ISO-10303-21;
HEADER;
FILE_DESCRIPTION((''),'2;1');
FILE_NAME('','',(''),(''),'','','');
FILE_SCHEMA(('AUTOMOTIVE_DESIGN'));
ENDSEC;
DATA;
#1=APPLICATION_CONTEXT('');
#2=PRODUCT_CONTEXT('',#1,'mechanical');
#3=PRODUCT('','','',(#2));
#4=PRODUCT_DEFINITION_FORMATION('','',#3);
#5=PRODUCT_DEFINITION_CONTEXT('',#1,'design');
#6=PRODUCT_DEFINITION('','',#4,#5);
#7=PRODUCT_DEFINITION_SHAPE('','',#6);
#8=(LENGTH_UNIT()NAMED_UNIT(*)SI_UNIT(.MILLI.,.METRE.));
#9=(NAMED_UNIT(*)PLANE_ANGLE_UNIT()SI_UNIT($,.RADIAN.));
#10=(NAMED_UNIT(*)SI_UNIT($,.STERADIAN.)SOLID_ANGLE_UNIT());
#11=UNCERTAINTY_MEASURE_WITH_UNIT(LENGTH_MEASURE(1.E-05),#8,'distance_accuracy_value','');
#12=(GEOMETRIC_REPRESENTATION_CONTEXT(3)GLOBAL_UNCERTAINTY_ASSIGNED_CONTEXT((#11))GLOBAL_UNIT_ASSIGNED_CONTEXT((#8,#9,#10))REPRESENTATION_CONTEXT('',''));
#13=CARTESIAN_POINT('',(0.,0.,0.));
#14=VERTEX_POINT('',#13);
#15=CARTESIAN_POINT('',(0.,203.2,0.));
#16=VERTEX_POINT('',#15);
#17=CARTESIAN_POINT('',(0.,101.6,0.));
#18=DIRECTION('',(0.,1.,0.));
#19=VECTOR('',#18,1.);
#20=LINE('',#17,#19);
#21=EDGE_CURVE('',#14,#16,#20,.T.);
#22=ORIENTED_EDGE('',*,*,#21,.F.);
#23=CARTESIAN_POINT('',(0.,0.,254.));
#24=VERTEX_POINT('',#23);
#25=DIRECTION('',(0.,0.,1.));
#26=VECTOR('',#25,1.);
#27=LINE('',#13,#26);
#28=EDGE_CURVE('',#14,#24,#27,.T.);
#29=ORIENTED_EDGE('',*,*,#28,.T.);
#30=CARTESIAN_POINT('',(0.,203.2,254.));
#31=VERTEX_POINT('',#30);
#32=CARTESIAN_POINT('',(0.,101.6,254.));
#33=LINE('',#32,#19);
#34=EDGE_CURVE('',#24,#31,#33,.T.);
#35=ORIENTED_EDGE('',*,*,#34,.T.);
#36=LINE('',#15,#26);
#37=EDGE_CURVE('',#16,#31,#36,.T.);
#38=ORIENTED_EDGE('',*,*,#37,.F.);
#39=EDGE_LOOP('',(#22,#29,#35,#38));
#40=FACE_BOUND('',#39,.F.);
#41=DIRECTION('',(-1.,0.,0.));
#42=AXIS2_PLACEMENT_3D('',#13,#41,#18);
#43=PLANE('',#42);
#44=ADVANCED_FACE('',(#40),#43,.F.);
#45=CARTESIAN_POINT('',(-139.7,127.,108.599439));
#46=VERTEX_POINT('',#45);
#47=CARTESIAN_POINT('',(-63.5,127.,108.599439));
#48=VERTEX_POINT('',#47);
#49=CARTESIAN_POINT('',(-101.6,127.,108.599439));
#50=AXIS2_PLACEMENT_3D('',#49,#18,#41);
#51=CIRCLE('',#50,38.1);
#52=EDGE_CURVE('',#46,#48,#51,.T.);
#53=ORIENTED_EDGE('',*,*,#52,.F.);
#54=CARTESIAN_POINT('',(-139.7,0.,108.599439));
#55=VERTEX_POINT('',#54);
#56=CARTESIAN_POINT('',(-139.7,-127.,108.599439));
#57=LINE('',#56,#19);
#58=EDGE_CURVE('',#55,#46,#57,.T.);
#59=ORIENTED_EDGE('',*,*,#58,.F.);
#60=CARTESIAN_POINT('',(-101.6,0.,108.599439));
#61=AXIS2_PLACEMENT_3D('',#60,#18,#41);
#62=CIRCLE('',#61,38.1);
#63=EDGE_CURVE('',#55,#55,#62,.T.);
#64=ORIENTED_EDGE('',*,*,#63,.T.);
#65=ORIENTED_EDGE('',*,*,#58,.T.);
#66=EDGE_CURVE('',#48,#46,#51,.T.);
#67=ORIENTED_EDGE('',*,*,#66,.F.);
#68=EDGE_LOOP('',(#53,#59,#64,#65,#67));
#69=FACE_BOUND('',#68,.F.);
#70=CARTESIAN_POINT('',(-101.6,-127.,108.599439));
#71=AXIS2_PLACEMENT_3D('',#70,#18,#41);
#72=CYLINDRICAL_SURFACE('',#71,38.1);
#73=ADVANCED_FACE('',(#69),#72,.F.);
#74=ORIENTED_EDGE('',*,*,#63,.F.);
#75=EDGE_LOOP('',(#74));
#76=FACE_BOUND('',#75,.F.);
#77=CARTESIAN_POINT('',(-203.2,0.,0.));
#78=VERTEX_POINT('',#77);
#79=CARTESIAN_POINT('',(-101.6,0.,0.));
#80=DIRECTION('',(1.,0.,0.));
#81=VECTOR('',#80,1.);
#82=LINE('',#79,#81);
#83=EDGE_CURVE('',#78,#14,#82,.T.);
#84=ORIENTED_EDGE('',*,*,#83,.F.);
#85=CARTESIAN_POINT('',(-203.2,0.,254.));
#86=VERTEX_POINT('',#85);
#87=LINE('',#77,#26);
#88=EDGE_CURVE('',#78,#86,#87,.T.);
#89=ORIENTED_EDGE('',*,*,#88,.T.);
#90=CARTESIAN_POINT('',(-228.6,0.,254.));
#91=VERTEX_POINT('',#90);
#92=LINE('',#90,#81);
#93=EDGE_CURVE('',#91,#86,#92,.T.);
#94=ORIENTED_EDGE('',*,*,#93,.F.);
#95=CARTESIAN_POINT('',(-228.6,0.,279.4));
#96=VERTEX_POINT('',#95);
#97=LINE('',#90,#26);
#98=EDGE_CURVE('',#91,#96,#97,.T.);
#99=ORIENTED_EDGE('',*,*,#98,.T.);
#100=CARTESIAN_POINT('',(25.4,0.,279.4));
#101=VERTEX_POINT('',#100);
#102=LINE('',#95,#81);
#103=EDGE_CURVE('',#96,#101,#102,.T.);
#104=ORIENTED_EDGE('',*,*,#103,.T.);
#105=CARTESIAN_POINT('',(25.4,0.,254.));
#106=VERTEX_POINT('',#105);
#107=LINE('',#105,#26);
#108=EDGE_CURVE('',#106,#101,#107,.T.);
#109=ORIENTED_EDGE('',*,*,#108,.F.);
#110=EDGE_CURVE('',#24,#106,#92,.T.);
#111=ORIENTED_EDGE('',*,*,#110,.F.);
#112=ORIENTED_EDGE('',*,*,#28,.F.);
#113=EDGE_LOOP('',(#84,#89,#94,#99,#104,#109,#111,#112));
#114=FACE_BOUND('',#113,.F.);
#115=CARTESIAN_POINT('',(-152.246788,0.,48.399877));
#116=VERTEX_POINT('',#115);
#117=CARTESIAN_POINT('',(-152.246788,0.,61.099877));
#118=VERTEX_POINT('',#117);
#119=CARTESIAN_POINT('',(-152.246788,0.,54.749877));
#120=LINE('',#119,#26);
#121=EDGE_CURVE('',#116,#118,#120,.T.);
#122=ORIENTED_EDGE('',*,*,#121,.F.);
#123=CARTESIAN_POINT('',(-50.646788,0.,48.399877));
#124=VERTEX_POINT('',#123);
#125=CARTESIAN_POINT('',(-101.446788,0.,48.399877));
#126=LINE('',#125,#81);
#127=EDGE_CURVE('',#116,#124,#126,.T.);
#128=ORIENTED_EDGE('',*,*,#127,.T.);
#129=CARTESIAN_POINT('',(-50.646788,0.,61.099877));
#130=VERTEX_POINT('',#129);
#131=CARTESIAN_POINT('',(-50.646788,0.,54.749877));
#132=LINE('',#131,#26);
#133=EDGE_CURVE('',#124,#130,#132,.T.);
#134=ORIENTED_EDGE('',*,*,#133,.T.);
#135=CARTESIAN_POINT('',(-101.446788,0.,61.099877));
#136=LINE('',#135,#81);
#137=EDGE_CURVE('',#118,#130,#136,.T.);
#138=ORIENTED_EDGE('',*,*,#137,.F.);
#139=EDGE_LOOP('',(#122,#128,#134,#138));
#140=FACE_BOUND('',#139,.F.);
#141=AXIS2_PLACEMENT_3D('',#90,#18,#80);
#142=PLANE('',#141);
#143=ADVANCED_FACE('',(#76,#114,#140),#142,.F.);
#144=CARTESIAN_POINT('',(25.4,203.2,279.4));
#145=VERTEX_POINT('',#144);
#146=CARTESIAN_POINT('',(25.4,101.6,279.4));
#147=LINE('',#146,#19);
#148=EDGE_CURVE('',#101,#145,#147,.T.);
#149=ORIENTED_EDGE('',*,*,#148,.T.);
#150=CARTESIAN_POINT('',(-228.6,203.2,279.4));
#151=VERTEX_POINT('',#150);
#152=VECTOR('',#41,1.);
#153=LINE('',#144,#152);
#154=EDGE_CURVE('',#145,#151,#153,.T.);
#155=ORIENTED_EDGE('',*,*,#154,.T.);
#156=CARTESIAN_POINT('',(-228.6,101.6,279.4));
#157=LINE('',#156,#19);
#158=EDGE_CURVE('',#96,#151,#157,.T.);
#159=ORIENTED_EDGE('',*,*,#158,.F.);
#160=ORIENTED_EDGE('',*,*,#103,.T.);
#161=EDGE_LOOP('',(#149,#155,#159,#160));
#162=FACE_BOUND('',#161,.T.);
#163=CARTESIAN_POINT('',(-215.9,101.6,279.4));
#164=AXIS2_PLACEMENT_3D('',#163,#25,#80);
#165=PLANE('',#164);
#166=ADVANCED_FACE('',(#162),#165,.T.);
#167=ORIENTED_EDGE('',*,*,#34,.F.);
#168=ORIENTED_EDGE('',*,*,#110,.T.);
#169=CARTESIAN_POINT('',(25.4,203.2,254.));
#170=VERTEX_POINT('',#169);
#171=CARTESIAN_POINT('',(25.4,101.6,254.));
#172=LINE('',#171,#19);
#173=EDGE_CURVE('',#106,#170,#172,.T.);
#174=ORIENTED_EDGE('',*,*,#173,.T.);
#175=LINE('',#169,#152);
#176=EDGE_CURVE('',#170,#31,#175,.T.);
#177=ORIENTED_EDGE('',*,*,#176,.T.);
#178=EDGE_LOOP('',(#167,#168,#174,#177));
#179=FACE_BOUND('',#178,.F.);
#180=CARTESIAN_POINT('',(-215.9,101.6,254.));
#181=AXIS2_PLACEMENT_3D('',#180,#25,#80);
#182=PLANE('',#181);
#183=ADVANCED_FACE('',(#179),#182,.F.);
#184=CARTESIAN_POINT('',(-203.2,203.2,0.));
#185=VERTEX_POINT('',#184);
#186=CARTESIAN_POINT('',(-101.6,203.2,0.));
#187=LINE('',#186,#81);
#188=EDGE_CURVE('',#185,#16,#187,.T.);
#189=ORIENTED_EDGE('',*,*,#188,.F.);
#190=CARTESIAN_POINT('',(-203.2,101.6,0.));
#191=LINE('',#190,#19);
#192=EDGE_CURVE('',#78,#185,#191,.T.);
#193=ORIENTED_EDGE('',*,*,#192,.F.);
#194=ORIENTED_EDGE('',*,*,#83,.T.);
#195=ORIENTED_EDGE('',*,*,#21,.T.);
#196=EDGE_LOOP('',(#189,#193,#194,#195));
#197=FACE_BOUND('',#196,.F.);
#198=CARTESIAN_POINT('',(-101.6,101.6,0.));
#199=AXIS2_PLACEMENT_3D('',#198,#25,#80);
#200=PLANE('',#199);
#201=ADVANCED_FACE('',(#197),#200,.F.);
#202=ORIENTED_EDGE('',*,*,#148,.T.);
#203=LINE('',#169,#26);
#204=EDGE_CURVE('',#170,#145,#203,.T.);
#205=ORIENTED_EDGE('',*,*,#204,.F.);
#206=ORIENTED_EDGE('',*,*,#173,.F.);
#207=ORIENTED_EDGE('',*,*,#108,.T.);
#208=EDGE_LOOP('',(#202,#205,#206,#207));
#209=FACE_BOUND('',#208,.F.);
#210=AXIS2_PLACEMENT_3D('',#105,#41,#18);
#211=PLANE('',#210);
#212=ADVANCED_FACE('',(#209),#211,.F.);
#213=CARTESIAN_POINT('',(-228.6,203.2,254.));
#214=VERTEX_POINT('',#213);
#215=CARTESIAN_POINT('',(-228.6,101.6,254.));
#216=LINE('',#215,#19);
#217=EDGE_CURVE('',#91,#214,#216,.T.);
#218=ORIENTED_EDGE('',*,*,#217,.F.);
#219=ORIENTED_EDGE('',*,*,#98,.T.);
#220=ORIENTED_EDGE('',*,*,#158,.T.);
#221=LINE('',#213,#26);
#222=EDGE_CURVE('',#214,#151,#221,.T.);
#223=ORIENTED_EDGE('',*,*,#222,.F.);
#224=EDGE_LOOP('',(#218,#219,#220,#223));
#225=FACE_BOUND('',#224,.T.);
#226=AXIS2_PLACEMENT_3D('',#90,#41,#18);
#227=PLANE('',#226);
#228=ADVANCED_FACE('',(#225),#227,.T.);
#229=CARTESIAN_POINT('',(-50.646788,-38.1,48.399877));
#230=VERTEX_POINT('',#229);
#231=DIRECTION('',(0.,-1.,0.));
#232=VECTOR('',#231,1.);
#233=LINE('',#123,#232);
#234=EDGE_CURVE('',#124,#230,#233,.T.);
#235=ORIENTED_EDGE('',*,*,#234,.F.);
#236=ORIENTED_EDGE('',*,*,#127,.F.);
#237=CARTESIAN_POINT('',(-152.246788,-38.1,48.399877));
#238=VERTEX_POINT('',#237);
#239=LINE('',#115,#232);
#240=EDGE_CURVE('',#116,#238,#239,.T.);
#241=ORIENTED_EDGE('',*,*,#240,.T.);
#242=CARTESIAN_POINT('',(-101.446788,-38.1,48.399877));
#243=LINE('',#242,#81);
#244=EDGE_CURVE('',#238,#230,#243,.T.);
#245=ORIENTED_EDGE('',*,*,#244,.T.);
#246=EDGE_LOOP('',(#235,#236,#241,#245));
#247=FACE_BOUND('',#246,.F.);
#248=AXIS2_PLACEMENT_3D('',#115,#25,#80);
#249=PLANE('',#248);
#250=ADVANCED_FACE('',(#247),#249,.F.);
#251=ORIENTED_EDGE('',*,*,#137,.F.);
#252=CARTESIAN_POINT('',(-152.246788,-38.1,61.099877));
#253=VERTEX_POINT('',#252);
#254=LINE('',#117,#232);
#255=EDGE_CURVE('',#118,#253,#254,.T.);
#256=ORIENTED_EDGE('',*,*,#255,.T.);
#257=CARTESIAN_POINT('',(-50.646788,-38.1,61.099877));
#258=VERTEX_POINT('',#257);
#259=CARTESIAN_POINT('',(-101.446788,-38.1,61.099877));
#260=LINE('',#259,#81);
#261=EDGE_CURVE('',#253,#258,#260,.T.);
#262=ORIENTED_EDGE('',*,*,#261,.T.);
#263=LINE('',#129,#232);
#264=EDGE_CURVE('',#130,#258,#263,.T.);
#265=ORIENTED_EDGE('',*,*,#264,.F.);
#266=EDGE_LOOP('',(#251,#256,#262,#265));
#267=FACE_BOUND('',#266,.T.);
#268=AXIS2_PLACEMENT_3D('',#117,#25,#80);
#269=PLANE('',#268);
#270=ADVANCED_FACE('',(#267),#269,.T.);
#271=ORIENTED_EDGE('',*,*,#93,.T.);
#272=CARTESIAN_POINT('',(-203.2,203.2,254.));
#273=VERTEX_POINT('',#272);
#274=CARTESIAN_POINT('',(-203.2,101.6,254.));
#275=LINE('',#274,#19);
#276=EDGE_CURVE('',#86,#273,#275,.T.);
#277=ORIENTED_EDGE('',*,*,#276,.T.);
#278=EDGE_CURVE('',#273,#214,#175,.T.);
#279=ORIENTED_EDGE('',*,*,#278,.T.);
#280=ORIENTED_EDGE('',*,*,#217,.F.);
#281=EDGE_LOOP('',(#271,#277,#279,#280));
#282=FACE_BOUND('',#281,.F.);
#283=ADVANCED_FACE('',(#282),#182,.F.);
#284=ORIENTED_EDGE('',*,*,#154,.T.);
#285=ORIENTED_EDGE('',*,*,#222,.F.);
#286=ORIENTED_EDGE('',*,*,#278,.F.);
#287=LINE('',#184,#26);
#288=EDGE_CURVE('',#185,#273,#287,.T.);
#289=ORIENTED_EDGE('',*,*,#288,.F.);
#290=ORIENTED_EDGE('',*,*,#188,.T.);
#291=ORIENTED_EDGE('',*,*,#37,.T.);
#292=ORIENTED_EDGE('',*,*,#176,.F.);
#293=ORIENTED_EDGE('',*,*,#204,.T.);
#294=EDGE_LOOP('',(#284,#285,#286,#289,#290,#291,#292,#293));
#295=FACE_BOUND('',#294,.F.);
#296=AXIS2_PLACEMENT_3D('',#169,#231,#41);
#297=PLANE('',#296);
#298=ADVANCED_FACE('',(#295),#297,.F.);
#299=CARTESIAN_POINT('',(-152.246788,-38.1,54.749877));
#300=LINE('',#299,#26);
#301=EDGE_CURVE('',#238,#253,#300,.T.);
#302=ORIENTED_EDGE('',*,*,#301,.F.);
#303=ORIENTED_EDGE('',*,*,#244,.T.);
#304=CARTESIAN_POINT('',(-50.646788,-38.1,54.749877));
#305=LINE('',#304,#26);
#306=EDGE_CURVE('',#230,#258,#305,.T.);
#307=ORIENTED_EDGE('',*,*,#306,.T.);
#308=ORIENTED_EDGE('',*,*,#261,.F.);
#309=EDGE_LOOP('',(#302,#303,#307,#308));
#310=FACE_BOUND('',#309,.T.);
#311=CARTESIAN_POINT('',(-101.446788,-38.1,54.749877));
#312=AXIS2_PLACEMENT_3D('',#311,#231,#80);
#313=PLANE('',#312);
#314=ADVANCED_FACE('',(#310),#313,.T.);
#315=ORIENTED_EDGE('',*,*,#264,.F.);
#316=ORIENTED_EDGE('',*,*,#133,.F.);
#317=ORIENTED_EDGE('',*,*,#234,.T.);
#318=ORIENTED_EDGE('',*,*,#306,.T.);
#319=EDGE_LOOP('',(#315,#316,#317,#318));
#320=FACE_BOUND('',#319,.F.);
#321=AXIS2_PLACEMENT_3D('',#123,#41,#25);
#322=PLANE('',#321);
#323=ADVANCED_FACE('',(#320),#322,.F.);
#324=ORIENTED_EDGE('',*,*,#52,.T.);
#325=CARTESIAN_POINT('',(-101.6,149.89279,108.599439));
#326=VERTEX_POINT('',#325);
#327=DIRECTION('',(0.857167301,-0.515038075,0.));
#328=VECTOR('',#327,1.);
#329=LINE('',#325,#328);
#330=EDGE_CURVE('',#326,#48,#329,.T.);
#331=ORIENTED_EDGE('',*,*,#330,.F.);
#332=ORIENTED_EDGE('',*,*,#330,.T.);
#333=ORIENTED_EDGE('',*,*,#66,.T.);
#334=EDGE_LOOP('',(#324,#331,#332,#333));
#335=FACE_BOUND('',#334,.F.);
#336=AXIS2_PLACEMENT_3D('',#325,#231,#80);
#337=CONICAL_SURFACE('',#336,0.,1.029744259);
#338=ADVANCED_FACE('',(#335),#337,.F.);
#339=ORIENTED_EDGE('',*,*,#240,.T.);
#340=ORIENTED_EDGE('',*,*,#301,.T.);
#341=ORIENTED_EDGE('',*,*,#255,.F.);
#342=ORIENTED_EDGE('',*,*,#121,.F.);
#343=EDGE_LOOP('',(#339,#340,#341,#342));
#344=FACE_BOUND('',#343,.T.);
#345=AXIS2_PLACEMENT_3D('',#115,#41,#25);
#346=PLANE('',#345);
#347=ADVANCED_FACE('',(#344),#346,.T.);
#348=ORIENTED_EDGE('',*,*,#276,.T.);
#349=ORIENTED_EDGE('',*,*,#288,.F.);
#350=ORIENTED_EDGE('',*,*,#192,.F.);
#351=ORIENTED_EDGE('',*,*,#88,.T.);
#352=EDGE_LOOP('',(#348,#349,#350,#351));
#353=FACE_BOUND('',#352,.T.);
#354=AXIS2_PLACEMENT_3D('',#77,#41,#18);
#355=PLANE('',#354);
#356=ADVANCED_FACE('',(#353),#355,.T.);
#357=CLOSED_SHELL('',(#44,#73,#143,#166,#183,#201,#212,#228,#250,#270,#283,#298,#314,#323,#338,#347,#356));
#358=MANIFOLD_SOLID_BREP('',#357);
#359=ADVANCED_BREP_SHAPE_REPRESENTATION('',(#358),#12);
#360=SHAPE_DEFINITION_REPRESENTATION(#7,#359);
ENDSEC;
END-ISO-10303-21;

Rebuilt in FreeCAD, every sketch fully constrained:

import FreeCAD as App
import Part
import Sketcher
from FreeCAD import Vector
Q = App.Units.Quantity


def add_polygon(sketch, points):
    """Adds a closed chain of lines whose ends are joined by coincident constraints."""
    first, n = sketch.GeometryCount, len(points)
    for a, b in zip(points, points[1:] + points[:1]):
        sketch.addGeometry(Part.LineSegment(App.Vector(*a, 0), App.Vector(*b, 0)), False)
    for i in range(n):
        sketch.addConstraint(Sketcher.Constraint("Coincident", first + i, 2, first + (i + 1) % n, 1))

doc = App.newDocument("Part")
body = doc.addObject("PartDesign::Body", "Body")

# Sketch on XY plane
sketch1 = doc.addObject("Sketcher::SketchObject", "Sketch")
body.addObject(sketch1)
sketch1.AttachmentSupport = (doc.XY_Plane, [""])
sketch1.MapMode = "FlatFace"
add_polygon(sketch1, [(-203, 203), (-203, 0), (0, 0), (0, 203)])  # lines 0-3
sketch1.addConstraint([
    Sketcher.Constraint("Vertical", 0),
    Sketcher.Constraint("Horizontal", 1),
    Sketcher.Constraint("Vertical", 2),
    Sketcher.Constraint("Horizontal", 3),
    Sketcher.Constraint("Coincident", 1, 2, -1, 1),
    Sketcher.Constraint("Equal", 3, 0),
    Sketcher.Constraint("DistanceX", 1, 1, 1, 2, Q("8 in")),
])
pad1 = doc.addObject("PartDesign::Pad", "Pad")
body.addObject(pad1)
pad1.Profile = sketch1
pad1.Length = Q("10 in")

# Sketch on XY plane
sketch2 = doc.addObject("Sketcher::SketchObject", "Sketch001")
body.addObject(sketch2)
sketch2.AttachmentSupport = (doc.XY_Plane, [""])
sketch2.MapMode = "FlatFace"
sketch2.AttachmentOffset = App.Placement(Vector(0, 0, 10 * 25.4), App.Rotation())
add_polygon(sketch2, [(-229, 203), (-229, 0), (25, 0), (25, 203)])  # lines 0-3
sketch2.addConstraint([
    Sketcher.Constraint("Vertical", 0),
    Sketcher.Constraint("Horizontal", 1),
    Sketcher.Constraint("Vertical", 2),
    Sketcher.Constraint("Horizontal", 3),
    Sketcher.Constraint("PointOnObject", 0, 2, -1),
    Sketcher.Constraint("DistanceX", 1, 1, 1, 2, Q("10 in")),
    Sketcher.Constraint("DistanceY", 0, 2, 0, 1, Q("8 in")),
    Sketcher.Constraint("DistanceX", 0, 2, -1, 1, Q("9 in")),
])
pad2 = doc.addObject("PartDesign::Pad", "Pad001")
body.addObject(pad2)
pad2.Profile = sketch2
pad2.Length = Q("1 in")

# Sketch on XZ plane
sketch3 = doc.addObject("Sketcher::SketchObject", "Sketch002")
body.addObject(sketch3)
sketch3.AttachmentSupport = (doc.XZ_Plane, [""])
sketch3.MapMode = "FlatFace"
sketch3.addGeometry(Part.Circle(Vector(-102, 109, 0), Vector(0, 0, 1), 38), False)
sketch3.addConstraint([
    Sketcher.Constraint("Diameter", 0, Q("3 in")),
    Sketcher.Constraint("DistanceX", 0, 3, -1, 1, Q("4 in")),
    Sketcher.Constraint("DistanceY", -1, 1, 0, 3, 108.599439),
])
doc.recompute()
hole = doc.addObject("PartDesign::Hole", "Hole")
body.addObject(hole)
hole.Profile = sketch3
hole.ThreadType = "None"
hole.Diameter = Q("3 in")
hole.DepthType = "Dimension"
hole.Depth = Q("5 in")
hole.DrillPoint = "Angled"
hole.DrillPointAngle = 118

# Sketch on XZ plane
sketch4 = doc.addObject("Sketcher::SketchObject", "Sketch003")
body.addObject(sketch4)
sketch4.AttachmentSupport = (doc.XZ_Plane, [""])
sketch4.MapMode = "FlatFace"
add_polygon(sketch4, [(-152, 61), (-152, 48), (-51, 48), (-51, 61)])  # lines 0-3
sketch4.addConstraint([
    Sketcher.Constraint("Vertical", 0),
    Sketcher.Constraint("Horizontal", 1),
    Sketcher.Constraint("Vertical", 2),
    Sketcher.Constraint("Horizontal", 3),
    Sketcher.Constraint("DistanceX", 1, 1, 1, 2, Q("4 in")),
    Sketcher.Constraint("DistanceY", 0, 2, 0, 1, Q("0.5 in")),
    Sketcher.Constraint("DistanceX", 0, 2, -1, 1, 152.246788),
    Sketcher.Constraint("DistanceY", -1, 1, 0, 2, 48.399877),
])
pad3 = doc.addObject("PartDesign::Pad", "Pad002")
body.addObject(pad3)
pad3.Profile = sketch4
pad3.Length = Q("1.5 in")

doc.recompute()
